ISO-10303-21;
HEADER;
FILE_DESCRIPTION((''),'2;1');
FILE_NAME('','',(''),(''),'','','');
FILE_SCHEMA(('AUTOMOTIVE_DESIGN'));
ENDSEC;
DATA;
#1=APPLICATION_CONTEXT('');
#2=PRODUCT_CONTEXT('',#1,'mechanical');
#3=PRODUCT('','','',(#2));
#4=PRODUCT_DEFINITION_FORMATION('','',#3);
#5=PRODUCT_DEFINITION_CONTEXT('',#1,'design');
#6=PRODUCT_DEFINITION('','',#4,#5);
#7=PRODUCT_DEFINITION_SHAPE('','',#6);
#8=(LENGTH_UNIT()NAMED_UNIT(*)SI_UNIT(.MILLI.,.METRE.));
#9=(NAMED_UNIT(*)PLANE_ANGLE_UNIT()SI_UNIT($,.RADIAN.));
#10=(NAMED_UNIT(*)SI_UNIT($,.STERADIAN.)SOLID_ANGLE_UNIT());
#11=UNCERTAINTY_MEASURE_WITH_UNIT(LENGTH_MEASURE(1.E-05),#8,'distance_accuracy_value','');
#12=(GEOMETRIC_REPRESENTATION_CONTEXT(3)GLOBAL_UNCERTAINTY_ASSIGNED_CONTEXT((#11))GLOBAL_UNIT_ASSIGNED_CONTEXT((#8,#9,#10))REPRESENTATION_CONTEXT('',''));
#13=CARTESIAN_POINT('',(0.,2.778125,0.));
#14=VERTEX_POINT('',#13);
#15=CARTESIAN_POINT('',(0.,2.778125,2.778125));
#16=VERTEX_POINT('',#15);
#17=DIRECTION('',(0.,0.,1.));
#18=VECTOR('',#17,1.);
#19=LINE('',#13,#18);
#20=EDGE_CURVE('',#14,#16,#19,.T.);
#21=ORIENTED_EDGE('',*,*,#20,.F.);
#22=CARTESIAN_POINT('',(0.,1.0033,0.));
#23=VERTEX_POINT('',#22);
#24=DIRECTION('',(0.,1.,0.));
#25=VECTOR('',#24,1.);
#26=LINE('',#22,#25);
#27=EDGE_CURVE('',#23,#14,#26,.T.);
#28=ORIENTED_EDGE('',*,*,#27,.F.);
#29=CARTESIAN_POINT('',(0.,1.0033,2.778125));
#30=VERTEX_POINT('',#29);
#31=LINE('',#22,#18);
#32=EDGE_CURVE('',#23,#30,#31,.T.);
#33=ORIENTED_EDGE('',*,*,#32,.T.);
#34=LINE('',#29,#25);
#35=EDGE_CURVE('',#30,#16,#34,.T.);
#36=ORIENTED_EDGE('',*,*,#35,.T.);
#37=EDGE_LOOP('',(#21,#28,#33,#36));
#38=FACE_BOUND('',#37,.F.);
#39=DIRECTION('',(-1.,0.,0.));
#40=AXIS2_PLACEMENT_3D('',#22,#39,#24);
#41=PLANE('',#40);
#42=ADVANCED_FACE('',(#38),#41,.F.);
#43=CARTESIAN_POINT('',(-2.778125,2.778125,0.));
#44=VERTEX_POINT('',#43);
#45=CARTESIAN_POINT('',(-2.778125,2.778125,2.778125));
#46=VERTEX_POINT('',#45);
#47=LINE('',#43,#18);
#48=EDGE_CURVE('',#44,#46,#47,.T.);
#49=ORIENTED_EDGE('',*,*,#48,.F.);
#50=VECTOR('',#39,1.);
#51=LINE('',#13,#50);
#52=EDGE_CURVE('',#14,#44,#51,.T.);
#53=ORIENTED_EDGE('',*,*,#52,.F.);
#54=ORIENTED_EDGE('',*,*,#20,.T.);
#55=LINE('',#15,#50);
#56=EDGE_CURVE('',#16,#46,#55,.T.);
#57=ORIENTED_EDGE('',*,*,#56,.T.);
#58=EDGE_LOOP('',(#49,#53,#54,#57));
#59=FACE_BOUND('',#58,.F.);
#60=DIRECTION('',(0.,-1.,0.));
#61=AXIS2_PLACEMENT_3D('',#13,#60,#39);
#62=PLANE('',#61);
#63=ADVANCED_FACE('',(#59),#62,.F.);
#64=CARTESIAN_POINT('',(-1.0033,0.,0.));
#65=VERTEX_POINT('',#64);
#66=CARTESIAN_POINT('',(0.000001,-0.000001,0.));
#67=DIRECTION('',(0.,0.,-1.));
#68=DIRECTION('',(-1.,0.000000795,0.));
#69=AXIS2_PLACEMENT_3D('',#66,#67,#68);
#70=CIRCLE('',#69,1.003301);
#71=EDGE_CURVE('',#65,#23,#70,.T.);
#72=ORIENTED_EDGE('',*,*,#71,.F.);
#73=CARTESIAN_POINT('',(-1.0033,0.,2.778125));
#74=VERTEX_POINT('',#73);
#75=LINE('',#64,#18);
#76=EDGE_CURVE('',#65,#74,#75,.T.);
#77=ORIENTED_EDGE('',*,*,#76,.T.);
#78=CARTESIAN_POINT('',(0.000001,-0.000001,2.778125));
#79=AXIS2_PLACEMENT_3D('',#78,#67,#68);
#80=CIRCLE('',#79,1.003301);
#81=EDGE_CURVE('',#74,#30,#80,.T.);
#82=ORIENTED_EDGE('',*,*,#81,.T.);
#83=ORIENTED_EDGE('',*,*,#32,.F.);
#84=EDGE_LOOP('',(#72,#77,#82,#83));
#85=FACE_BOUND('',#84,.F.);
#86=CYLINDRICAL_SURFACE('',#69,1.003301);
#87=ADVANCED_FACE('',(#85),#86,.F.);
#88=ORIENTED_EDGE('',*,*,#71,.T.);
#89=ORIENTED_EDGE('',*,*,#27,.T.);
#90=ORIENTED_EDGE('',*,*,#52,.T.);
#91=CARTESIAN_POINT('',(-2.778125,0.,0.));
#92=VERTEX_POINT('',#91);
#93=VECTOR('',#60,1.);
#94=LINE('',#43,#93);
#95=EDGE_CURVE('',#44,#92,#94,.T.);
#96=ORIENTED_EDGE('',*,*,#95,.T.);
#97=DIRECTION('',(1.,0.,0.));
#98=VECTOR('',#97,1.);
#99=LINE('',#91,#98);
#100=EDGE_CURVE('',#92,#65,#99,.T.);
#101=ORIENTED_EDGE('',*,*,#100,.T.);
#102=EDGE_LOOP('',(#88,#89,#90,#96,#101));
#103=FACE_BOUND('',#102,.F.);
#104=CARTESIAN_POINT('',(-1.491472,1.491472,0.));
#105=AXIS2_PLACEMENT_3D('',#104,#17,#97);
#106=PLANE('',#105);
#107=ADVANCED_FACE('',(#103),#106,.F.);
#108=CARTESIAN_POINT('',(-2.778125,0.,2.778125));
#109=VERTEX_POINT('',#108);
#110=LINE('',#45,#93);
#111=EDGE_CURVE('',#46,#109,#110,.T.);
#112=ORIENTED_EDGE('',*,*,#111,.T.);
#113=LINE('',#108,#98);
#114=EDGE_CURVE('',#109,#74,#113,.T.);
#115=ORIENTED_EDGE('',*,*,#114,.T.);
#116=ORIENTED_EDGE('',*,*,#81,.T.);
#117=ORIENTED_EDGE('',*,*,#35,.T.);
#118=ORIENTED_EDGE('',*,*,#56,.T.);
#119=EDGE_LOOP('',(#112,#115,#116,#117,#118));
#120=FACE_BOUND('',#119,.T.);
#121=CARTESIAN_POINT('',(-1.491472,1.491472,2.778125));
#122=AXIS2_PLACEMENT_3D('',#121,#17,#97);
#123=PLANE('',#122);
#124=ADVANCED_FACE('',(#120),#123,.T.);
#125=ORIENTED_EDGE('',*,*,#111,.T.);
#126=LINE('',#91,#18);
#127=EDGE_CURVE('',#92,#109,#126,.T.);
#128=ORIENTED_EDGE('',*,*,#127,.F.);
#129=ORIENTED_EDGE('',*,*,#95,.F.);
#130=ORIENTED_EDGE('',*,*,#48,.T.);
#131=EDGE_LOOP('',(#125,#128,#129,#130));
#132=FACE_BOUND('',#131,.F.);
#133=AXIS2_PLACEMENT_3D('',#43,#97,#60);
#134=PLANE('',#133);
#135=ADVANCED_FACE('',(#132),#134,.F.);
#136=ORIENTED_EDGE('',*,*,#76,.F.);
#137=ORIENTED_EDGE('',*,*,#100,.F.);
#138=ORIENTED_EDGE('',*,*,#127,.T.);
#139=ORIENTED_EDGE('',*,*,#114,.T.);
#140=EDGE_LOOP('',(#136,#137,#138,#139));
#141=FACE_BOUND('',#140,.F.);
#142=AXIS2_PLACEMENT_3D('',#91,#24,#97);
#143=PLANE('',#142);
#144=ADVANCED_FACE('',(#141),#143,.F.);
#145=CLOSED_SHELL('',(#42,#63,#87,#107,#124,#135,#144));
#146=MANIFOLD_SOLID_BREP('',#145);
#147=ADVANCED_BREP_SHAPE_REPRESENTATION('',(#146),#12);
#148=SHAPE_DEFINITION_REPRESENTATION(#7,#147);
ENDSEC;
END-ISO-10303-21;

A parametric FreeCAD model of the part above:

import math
import FreeCAD as App
import Part
import Sketcher
from FreeCAD import Vector
Q = App.Units.Quantity

doc = App.newDocument("Part")
body = doc.addObject("PartDesign::Body", "Body")

# Sketch on XY plane
sketch1 = body.newObject("Sketcher::SketchObject", "Sketch")
sketch1.AttachmentSupport = (doc.getObject("XY_Plane"), [""])
sketch1.MapMode = "FlatFace"
sketch1.addGeometry(Part.LineSegment(Vector(-2.8, 0, 0), Vector(-1, 0, 0)), False)
sketch1.addGeometry(Part.ArcOfCircle(Part.Circle(Vector(0, 0, 0), Vector(0, 0, 1), 1), math.radians(90), math.radians(180)), False)
sketch1.addGeometry(Part.LineSegment(Vector(0, 1, 0), Vector(0, 2.8, 0)), False)
sketch1.addGeometry(Part.LineSegment(Vector(0, 2.8, 0), Vector(-2.8, 2.8, 0)), False)
sketch1.addGeometry(Part.LineSegment(Vector(-2.8, 2.8, 0), Vector(-2.8, 0, 0)), False)
sketch1.addConstraint(Sketcher.Constraint("Coincident", 0, 2, 1, 2))
sketch1.addConstraint(Sketcher.Constraint("Coincident", 1, 1, 2, 1))
sketch1.addConstraint(Sketcher.Constraint("Coincident", 2, 2, 3, 1))
sketch1.addConstraint(Sketcher.Constraint("Coincident", 3, 2, 4, 1))
sketch1.addConstraint(Sketcher.Constraint("Coincident", 4, 2, 0, 1))
sketch1.addConstraint(Sketcher.Constraint("Horizontal", 0))
sketch1.addConstraint(Sketcher.Constraint("Vertical", 2))
sketch1.addConstraint(Sketcher.Constraint("Horizontal", 3))
sketch1.addConstraint(Sketcher.Constraint("Vertical", 4))
sketch1.addConstraint(Sketcher.Constraint("Coincident", 1, 3, -1, 1))
sketch1.addConstraint(Sketcher.Constraint("PointOnObject", 0, 2, -1))
sketch1.addConstraint(Sketcher.Constraint("PointOnObject", 1, 1, -2))
sketch1.addConstraint(Sketcher.Constraint("Equal", 0, 2))
sketch1.addConstraint(Sketcher.Constraint("Radius", 1, Q("0.0395 in")))
sketch1.addConstraint(Sketcher.Constraint("DistanceX", 3, 2, 3, 1, Q("0.109375 in")))
pad1 = body.newObject("PartDesign::Pad", "Pad")
pad1.Profile = sketch1
pad1.Length = Q("0.109375 in")

doc.recompute()
